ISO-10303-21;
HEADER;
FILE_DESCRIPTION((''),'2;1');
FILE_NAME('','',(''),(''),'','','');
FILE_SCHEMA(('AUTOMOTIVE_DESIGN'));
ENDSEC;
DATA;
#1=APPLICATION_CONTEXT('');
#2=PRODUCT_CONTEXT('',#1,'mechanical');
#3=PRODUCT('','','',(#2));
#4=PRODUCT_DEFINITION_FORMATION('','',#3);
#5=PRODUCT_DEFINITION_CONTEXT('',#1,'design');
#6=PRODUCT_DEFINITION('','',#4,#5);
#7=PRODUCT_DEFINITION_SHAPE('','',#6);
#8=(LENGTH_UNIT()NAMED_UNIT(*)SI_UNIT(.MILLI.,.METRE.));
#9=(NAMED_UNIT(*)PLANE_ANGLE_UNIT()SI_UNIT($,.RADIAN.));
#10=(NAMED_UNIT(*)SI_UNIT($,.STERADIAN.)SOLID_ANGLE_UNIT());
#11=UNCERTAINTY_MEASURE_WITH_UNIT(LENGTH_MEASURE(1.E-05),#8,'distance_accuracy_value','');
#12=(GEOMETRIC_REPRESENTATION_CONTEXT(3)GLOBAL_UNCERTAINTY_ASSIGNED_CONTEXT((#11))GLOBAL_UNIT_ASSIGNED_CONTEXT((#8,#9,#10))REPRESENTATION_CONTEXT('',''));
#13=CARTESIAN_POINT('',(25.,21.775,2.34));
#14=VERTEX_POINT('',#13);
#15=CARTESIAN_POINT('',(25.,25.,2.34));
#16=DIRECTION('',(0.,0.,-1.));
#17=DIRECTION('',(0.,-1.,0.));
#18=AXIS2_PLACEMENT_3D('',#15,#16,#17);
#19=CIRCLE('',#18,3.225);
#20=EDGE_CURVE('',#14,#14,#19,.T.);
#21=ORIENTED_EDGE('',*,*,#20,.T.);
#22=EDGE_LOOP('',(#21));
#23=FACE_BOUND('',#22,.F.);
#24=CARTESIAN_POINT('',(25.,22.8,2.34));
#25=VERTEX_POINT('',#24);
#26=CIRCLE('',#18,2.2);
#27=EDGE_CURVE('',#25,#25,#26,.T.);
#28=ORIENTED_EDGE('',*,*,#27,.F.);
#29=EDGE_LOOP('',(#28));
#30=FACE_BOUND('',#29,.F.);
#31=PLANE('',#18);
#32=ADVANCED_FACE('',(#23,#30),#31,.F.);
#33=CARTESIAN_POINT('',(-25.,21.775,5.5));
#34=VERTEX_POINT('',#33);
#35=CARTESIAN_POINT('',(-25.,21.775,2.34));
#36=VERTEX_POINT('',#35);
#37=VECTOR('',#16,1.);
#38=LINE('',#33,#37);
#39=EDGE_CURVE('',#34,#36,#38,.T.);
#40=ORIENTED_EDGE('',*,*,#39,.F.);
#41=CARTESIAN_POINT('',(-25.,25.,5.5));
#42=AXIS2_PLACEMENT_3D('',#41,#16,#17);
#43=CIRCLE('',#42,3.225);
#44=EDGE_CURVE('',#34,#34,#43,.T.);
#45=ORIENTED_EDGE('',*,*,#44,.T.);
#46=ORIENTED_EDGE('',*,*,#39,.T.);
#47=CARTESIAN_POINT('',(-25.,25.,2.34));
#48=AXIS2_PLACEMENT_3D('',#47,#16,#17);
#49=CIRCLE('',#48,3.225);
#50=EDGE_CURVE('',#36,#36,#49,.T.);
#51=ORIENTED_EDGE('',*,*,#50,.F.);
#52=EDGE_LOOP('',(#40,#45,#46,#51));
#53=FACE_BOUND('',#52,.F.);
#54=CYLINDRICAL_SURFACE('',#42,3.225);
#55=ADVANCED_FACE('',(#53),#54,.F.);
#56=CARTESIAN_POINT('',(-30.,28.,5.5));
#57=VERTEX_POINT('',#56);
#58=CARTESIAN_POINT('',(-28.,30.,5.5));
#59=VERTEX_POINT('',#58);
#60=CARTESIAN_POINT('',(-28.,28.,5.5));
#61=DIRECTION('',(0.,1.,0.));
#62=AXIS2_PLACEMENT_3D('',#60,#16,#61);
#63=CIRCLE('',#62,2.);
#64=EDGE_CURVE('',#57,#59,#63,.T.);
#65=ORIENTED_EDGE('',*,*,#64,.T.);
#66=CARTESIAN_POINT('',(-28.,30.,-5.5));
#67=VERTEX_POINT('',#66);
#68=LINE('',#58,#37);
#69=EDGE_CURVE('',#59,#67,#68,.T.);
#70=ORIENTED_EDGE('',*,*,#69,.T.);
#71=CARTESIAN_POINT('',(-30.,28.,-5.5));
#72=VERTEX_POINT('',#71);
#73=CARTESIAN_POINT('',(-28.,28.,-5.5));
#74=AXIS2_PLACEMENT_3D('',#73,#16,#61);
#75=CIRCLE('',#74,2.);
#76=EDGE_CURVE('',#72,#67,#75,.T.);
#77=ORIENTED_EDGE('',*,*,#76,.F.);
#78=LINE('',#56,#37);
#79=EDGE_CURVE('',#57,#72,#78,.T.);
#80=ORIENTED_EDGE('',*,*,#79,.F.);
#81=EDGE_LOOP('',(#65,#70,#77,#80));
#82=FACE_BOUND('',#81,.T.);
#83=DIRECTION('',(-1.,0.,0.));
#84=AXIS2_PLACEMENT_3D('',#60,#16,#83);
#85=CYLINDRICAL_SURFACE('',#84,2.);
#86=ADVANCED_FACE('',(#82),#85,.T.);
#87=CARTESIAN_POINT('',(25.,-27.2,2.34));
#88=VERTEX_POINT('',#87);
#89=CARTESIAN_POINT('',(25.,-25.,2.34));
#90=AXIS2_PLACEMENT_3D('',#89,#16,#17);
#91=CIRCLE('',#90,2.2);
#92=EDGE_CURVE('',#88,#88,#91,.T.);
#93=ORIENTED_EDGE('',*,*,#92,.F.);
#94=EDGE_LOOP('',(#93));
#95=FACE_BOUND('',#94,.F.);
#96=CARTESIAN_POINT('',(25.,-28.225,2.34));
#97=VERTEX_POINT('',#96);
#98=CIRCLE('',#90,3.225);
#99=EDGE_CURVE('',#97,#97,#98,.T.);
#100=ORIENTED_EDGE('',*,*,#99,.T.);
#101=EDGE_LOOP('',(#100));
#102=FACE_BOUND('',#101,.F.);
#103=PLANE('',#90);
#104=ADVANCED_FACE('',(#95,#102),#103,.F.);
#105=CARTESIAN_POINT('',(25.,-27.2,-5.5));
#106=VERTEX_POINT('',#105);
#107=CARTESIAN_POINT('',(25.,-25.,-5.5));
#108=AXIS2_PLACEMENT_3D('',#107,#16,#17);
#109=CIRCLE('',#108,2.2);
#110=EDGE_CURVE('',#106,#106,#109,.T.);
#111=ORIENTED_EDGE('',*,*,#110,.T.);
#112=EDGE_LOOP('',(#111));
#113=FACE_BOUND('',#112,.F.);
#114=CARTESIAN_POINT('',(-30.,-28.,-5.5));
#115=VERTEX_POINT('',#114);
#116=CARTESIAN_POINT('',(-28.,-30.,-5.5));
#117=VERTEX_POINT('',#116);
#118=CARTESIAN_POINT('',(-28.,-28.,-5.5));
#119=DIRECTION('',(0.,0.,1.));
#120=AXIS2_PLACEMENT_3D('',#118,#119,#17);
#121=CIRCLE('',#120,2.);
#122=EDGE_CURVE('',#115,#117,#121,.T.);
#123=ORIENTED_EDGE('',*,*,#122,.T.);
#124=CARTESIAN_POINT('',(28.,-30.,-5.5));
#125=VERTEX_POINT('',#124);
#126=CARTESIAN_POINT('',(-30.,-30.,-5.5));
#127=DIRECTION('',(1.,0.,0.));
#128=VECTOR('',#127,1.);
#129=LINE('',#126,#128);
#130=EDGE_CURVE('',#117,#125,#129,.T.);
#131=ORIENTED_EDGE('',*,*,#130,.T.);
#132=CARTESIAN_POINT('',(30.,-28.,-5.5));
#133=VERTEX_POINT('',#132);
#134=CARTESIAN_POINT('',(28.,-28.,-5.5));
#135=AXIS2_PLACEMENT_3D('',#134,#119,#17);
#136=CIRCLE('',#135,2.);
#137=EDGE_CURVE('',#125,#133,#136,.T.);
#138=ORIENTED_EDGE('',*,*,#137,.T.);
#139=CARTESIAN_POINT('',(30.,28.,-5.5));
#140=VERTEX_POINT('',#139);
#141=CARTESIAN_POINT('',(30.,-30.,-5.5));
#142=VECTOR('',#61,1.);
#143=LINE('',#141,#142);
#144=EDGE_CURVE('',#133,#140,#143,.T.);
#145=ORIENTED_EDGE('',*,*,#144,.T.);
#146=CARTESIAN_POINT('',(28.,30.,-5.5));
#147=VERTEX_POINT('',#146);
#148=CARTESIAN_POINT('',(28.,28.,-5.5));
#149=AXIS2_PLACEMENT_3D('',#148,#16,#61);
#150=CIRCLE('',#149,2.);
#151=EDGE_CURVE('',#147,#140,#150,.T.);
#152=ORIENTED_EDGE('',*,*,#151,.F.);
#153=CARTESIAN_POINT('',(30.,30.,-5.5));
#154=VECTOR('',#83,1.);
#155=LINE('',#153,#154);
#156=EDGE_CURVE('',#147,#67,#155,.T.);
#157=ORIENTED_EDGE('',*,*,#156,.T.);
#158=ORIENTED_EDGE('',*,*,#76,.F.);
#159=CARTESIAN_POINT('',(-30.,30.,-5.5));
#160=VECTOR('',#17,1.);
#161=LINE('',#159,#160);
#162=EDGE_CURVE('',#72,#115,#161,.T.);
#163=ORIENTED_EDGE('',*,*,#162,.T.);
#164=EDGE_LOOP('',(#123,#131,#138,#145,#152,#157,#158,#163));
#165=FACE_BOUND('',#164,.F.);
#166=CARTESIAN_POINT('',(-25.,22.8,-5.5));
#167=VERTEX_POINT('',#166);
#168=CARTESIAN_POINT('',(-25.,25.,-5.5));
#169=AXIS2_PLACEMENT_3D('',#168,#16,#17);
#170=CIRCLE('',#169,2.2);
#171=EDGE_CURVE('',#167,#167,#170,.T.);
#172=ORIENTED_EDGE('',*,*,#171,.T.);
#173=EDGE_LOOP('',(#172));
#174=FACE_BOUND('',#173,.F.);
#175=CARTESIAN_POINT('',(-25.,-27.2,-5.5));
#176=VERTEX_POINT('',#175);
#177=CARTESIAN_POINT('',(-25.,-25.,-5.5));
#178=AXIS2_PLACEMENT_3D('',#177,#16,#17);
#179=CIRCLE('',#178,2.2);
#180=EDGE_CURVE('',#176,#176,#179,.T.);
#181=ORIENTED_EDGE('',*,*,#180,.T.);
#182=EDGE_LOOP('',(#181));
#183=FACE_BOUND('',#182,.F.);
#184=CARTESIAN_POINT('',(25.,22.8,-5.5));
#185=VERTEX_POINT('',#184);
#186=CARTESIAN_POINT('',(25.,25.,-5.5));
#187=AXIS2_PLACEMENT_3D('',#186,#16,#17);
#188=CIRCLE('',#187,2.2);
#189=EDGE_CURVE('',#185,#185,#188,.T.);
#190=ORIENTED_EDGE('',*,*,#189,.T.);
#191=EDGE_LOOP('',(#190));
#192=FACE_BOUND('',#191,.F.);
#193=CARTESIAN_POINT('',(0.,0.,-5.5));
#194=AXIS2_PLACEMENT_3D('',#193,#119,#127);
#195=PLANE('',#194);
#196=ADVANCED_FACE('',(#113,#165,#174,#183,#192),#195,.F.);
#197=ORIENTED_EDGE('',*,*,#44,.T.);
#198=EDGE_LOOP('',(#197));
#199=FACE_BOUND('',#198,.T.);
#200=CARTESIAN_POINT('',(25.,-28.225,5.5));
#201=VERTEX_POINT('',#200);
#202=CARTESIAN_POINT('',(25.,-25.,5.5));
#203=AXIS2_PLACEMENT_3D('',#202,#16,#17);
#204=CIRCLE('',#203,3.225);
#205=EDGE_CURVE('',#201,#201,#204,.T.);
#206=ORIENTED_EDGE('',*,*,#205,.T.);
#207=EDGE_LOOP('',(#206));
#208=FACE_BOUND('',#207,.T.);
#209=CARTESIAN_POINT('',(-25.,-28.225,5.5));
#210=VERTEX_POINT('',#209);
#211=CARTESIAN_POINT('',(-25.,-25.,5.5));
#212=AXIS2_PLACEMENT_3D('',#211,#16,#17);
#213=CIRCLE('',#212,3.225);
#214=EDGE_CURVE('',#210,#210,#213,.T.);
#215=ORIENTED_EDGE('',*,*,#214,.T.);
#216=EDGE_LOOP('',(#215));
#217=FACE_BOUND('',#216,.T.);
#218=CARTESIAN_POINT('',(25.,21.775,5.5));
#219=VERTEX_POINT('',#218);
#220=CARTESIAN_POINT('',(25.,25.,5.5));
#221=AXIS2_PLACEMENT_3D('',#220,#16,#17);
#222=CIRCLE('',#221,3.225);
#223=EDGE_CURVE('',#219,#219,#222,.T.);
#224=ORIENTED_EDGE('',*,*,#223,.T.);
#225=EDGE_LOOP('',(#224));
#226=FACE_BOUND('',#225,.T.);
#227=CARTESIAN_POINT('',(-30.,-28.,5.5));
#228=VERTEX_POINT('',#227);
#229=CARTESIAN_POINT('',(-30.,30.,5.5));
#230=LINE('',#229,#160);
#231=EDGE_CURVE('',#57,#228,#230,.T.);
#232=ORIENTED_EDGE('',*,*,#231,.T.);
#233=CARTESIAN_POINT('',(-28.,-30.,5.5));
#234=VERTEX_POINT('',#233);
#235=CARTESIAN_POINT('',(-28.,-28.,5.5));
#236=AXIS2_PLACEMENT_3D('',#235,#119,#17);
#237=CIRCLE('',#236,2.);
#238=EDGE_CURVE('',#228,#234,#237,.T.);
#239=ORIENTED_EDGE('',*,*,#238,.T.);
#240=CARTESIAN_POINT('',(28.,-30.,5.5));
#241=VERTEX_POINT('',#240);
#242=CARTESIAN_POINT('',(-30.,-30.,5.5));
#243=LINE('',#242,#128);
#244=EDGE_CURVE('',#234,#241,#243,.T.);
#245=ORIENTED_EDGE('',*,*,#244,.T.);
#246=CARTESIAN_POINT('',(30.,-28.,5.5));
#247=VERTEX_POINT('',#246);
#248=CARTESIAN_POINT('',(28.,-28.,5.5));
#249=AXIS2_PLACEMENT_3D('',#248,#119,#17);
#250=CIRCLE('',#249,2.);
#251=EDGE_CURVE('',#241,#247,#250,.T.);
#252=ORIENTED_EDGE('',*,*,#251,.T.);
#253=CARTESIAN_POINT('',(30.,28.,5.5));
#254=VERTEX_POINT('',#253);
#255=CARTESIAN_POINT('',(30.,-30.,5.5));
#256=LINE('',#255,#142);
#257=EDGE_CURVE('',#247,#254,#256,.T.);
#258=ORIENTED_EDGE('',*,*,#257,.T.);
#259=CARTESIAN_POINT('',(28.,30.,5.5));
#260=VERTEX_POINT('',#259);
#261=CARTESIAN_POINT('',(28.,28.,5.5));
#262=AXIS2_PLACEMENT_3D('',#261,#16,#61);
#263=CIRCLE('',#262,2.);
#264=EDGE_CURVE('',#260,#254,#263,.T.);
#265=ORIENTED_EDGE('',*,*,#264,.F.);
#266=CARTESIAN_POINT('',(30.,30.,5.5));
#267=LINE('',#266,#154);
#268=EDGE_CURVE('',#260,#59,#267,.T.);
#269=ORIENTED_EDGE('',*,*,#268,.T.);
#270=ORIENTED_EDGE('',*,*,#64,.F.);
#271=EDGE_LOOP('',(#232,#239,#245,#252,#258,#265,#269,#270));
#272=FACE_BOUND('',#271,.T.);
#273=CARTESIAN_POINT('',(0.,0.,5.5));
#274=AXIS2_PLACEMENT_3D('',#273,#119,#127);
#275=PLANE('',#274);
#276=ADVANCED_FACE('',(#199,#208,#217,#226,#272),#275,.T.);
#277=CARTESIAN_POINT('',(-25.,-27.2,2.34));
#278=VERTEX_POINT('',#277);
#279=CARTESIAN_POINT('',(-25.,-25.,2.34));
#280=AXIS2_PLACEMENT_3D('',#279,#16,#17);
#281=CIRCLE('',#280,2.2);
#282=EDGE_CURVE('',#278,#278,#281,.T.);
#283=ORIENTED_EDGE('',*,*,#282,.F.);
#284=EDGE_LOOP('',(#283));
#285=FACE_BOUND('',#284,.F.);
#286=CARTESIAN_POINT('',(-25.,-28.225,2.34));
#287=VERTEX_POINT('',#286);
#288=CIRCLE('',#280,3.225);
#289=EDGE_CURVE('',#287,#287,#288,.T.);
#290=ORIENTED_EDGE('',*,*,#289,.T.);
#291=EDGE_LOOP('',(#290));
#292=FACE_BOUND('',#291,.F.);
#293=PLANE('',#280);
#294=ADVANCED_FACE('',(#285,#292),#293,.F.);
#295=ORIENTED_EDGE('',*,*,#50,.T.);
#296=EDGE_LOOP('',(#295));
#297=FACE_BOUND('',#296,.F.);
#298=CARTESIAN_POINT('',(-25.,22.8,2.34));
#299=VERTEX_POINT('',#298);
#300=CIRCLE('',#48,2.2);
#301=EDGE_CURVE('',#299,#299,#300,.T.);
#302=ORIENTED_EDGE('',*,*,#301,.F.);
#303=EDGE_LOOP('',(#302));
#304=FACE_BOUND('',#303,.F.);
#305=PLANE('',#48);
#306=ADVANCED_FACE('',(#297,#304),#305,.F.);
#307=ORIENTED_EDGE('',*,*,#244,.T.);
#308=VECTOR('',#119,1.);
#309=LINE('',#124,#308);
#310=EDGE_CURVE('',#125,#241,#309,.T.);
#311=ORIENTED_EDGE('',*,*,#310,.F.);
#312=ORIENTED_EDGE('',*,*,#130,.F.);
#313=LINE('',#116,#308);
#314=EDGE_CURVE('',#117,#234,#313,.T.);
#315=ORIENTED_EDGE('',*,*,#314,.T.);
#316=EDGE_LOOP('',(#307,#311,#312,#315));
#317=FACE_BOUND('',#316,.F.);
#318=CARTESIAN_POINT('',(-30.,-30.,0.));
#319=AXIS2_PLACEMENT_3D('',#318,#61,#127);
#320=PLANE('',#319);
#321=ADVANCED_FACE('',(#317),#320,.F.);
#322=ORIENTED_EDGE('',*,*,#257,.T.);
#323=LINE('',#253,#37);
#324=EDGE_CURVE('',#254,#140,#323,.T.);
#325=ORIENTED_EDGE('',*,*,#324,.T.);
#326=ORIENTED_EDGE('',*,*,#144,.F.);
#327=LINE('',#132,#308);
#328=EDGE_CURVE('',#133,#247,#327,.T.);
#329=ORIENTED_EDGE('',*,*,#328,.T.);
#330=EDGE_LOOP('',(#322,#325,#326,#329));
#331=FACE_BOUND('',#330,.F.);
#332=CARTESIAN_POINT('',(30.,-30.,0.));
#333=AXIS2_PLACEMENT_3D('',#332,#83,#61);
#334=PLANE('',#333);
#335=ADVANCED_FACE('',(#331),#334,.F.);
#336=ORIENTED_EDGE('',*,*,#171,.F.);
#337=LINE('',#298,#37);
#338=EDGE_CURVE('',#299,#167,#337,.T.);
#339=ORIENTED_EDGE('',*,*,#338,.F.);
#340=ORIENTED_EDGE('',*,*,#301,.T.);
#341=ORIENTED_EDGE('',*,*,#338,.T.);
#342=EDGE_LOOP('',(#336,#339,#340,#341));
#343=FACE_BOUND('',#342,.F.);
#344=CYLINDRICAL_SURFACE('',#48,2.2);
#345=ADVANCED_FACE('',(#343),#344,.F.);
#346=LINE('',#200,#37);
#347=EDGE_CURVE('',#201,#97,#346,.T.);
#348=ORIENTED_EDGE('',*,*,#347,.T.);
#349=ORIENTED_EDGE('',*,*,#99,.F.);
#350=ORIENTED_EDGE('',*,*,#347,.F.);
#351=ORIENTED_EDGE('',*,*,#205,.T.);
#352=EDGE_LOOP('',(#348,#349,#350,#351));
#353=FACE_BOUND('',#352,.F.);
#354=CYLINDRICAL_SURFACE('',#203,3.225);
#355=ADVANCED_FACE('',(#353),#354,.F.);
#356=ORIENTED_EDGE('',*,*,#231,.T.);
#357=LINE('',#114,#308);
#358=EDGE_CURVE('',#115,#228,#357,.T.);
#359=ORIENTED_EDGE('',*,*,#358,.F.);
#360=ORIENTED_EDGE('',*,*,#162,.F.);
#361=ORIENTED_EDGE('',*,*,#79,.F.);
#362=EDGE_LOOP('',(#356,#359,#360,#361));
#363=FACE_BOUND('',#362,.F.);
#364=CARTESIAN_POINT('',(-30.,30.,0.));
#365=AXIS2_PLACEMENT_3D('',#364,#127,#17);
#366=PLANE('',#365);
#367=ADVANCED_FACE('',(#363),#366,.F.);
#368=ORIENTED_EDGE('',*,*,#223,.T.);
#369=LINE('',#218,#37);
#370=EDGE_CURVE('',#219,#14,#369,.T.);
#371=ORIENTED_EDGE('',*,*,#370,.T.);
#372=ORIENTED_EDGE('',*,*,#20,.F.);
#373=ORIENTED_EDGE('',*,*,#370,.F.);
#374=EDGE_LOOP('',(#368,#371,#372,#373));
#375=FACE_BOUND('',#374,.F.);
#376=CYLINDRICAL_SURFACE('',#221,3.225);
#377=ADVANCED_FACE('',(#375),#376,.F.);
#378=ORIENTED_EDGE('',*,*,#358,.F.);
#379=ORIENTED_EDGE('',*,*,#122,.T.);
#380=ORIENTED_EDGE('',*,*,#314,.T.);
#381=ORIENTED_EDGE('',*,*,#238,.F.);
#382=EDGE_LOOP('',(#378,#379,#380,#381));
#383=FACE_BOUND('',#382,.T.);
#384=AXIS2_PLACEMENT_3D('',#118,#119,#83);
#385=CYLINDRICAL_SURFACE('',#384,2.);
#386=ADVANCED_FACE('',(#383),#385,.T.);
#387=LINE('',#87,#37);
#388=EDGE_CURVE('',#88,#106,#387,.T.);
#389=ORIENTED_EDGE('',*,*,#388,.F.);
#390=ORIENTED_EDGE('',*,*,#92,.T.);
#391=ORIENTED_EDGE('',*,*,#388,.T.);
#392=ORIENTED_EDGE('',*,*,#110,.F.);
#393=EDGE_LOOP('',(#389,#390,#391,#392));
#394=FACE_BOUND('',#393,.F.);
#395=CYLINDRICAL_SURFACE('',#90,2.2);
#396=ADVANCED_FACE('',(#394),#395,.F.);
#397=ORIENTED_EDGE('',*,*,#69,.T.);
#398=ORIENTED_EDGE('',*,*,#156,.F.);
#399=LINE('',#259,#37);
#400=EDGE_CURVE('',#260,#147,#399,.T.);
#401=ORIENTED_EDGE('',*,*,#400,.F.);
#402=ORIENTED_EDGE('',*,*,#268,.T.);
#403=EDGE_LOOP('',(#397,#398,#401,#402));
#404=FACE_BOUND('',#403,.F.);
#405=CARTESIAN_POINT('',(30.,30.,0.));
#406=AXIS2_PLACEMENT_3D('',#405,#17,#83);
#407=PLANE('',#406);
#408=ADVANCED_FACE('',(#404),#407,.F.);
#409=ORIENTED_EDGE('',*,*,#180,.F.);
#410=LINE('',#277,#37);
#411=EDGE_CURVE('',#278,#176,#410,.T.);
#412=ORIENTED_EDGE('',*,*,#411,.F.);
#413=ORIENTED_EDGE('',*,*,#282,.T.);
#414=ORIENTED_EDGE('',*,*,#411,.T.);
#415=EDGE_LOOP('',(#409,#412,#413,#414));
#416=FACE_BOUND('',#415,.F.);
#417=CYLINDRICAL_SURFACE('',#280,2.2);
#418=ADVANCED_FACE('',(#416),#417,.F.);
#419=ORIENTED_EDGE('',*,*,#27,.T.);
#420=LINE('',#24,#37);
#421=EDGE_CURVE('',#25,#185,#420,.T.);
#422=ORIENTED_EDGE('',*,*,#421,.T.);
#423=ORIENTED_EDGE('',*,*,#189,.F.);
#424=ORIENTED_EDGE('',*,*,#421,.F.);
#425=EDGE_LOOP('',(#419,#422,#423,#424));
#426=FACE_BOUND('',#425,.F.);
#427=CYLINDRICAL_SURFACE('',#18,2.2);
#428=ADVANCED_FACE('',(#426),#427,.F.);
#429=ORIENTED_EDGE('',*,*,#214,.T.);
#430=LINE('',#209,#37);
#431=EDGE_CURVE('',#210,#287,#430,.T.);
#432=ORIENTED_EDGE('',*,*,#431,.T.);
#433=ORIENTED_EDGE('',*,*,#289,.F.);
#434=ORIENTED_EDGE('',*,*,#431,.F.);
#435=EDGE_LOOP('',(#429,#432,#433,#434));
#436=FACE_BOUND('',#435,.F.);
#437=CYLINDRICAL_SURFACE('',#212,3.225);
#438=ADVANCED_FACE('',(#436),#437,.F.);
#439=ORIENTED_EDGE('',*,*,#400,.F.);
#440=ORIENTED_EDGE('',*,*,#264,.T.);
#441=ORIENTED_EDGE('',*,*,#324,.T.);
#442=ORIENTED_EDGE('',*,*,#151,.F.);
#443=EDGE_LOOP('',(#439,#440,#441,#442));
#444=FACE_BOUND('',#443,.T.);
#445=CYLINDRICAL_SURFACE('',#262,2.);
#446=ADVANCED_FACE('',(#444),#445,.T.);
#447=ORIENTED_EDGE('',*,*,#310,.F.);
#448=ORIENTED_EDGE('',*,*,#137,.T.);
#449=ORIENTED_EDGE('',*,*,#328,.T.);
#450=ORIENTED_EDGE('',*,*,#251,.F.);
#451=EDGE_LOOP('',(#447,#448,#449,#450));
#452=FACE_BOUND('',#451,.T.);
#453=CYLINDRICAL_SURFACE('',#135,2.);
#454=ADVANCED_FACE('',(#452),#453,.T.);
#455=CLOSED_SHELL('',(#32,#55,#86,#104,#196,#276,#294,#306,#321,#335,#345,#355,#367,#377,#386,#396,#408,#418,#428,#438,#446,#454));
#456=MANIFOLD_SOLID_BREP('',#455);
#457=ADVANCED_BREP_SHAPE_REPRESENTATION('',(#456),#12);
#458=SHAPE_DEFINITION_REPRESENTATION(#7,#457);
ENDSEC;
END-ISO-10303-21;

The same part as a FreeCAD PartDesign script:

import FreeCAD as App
import Part
import Sketcher
from FreeCAD import Vector


def edges_at(feature, points):
    """Names of the edges that pass closest to the given points."""
    edges = feature.Shape.Edges
    near = lambda p: min(range(len(edges)), key=lambda i: edges[i].distToShape(Part.Vertex(*p))[0])
    return sorted({f"Edge{near(p) + 1}" for p in points})


def add_polygon(sketch, points):
    """Adds a closed chain of lines whose ends are joined by coincident constraints."""
    first, n = sketch.GeometryCount, len(points)
    for a, b in zip(points, points[1:] + points[:1]):
        sketch.addGeometry(Part.LineSegment(App.Vector(*a, 0), App.Vector(*b, 0)), False)
    for i in range(n):
        sketch.addConstraint(Sketcher.Constraint("Coincident", first + i, 2, first + (i + 1) % n, 1))

doc = App.newDocument("Part")
params = doc.addObject("Spreadsheet::Sheet", "Params")
for row, (alias, value) in enumerate([
    ("sketch1_width", "60 mm"),
    ("pad1_length", "11 mm"),
    ("sketch2_diameter", "4.4 mm"),
    ("hole_diameter", "4.4 mm"),
    ("hole_cbore_diameter", "6.45 mm"),
    ("hole_cbore_depth", "3.16 mm"),
    ("fillet_radius", "2 mm"),
], start=1):
    params.set(f"A{row}", alias)
    params.set(f"B{row}", "=" + value)
    params.setAlias(f"B{row}", alias)

body = doc.addObject("PartDesign::Body", "Body")

sketch1 = body.newObject("Sketcher::SketchObject", "Sketch")
sketch1.AttachmentSupport = (doc.getObject("XY_Plane"), [""])
sketch1.MapMode = "FlatFace"
add_polygon(sketch1, [(-30, 30), (-30, -30), (30, -30), (30, 30)])
sketch1.addConstraint(Sketcher.Constraint("Vertical", 0))
sketch1.addConstraint(Sketcher.Constraint("Horizontal", 1))
sketch1.addConstraint(Sketcher.Constraint("Vertical", 2))
sketch1.addConstraint(Sketcher.Constraint("Horizontal", 3))
sketch1.addConstraint(Sketcher.Constraint("Symmetric", 0, 2, 2, 2, -1, 1))
sketch1.addConstraint(Sketcher.Constraint("Equal", 3, 0))
sketch1.addConstraint(Sketcher.Constraint("DistanceX", 1, 1, 1, 2, 60.0))
sketch1.setExpression("Constraints[10]", "Params.sketch1_width")
pad1 = body.newObject("PartDesign::Pad", "Pad")
pad1.Profile = sketch1
pad1.setExpression("Length", "Params.pad1_length")
pad1.Midplane = True

sketch2 = body.newObject("Sketcher::SketchObject", "Sketch001")
sketch2.AttachmentSupport = (doc.getObject("XY_Plane"), [""])
sketch2.MapMode = "FlatFace"
sketch2.AttachmentOffset = App.Placement(Vector(0, 0, 5.5), App.Rotation())
sketch2.addGeometry(Part.Circle(Vector(-25, 25, 0), Vector(0, 0, 1), 2.2), False)
sketch2.addGeometry(Part.Circle(Vector(25, 25, 0), Vector(0, 0, 1), 2.2), False)
sketch2.addGeometry(Part.Circle(Vector(25, -25, 0), Vector(0, 0, 1), 2.2), False)
sketch2.addGeometry(Part.Circle(Vector(-25, -25, 0), Vector(0, 0, 1), 2.2), False)
sketch2.addConstraint(Sketcher.Constraint("Equal", 0, 1))
sketch2.addConstraint(Sketcher.Constraint("Equal", 1, 2))
sketch2.addConstraint(Sketcher.Constraint("Equal", 2, 3))
sketch2.addConstraint(Sketcher.Constraint("Symmetric", 0, 3, 2, 3, -1, 1))
sketch2.addConstraint(Sketcher.Constraint("Symmetric", 1, 3, 3, 3, -1, 1))
sketch2.addConstraint(Sketcher.Constraint("Symmetric", 0, 3, 1, 3, -2))
sketch2.addConstraint(Sketcher.Constraint("Diameter", 0, 4.4))
sketch2.addConstraint(Sketcher.Constraint("DistanceX", 0, 3, -1, 1, 25.0))
sketch2.addConstraint(Sketcher.Constraint("DistanceY", -1, 1, 0, 3, 25.0))
sketch2.setExpression("Constraints[6]", "Params.sketch2_diameter")
doc.recompute()
hole = body.newObject("PartDesign::Hole", "Hole")
hole.Profile = sketch2
hole.ThreadType = "None"
hole.setExpression("Diameter", "Params.hole_diameter")
hole.DepthType = "ThroughAll"
hole.HoleCutType = "Counterbore"
hole.setExpression("HoleCutDiameter", "Params.hole_cbore_diameter")
hole.setExpression("HoleCutDepth", "Params.hole_cbore_depth")
doc.recompute()

fillet = body.newObject("PartDesign::Fillet", "Fillet")
fillet.Base = (hole, edges_at(hole, [
    (-30, 30, 0),
    (30, 30, 0),
    (30, -30, 0),
    (-30, -30, 0),
]))
fillet.setExpression("Radius", "Params.fillet_radius")

doc.recompute()
